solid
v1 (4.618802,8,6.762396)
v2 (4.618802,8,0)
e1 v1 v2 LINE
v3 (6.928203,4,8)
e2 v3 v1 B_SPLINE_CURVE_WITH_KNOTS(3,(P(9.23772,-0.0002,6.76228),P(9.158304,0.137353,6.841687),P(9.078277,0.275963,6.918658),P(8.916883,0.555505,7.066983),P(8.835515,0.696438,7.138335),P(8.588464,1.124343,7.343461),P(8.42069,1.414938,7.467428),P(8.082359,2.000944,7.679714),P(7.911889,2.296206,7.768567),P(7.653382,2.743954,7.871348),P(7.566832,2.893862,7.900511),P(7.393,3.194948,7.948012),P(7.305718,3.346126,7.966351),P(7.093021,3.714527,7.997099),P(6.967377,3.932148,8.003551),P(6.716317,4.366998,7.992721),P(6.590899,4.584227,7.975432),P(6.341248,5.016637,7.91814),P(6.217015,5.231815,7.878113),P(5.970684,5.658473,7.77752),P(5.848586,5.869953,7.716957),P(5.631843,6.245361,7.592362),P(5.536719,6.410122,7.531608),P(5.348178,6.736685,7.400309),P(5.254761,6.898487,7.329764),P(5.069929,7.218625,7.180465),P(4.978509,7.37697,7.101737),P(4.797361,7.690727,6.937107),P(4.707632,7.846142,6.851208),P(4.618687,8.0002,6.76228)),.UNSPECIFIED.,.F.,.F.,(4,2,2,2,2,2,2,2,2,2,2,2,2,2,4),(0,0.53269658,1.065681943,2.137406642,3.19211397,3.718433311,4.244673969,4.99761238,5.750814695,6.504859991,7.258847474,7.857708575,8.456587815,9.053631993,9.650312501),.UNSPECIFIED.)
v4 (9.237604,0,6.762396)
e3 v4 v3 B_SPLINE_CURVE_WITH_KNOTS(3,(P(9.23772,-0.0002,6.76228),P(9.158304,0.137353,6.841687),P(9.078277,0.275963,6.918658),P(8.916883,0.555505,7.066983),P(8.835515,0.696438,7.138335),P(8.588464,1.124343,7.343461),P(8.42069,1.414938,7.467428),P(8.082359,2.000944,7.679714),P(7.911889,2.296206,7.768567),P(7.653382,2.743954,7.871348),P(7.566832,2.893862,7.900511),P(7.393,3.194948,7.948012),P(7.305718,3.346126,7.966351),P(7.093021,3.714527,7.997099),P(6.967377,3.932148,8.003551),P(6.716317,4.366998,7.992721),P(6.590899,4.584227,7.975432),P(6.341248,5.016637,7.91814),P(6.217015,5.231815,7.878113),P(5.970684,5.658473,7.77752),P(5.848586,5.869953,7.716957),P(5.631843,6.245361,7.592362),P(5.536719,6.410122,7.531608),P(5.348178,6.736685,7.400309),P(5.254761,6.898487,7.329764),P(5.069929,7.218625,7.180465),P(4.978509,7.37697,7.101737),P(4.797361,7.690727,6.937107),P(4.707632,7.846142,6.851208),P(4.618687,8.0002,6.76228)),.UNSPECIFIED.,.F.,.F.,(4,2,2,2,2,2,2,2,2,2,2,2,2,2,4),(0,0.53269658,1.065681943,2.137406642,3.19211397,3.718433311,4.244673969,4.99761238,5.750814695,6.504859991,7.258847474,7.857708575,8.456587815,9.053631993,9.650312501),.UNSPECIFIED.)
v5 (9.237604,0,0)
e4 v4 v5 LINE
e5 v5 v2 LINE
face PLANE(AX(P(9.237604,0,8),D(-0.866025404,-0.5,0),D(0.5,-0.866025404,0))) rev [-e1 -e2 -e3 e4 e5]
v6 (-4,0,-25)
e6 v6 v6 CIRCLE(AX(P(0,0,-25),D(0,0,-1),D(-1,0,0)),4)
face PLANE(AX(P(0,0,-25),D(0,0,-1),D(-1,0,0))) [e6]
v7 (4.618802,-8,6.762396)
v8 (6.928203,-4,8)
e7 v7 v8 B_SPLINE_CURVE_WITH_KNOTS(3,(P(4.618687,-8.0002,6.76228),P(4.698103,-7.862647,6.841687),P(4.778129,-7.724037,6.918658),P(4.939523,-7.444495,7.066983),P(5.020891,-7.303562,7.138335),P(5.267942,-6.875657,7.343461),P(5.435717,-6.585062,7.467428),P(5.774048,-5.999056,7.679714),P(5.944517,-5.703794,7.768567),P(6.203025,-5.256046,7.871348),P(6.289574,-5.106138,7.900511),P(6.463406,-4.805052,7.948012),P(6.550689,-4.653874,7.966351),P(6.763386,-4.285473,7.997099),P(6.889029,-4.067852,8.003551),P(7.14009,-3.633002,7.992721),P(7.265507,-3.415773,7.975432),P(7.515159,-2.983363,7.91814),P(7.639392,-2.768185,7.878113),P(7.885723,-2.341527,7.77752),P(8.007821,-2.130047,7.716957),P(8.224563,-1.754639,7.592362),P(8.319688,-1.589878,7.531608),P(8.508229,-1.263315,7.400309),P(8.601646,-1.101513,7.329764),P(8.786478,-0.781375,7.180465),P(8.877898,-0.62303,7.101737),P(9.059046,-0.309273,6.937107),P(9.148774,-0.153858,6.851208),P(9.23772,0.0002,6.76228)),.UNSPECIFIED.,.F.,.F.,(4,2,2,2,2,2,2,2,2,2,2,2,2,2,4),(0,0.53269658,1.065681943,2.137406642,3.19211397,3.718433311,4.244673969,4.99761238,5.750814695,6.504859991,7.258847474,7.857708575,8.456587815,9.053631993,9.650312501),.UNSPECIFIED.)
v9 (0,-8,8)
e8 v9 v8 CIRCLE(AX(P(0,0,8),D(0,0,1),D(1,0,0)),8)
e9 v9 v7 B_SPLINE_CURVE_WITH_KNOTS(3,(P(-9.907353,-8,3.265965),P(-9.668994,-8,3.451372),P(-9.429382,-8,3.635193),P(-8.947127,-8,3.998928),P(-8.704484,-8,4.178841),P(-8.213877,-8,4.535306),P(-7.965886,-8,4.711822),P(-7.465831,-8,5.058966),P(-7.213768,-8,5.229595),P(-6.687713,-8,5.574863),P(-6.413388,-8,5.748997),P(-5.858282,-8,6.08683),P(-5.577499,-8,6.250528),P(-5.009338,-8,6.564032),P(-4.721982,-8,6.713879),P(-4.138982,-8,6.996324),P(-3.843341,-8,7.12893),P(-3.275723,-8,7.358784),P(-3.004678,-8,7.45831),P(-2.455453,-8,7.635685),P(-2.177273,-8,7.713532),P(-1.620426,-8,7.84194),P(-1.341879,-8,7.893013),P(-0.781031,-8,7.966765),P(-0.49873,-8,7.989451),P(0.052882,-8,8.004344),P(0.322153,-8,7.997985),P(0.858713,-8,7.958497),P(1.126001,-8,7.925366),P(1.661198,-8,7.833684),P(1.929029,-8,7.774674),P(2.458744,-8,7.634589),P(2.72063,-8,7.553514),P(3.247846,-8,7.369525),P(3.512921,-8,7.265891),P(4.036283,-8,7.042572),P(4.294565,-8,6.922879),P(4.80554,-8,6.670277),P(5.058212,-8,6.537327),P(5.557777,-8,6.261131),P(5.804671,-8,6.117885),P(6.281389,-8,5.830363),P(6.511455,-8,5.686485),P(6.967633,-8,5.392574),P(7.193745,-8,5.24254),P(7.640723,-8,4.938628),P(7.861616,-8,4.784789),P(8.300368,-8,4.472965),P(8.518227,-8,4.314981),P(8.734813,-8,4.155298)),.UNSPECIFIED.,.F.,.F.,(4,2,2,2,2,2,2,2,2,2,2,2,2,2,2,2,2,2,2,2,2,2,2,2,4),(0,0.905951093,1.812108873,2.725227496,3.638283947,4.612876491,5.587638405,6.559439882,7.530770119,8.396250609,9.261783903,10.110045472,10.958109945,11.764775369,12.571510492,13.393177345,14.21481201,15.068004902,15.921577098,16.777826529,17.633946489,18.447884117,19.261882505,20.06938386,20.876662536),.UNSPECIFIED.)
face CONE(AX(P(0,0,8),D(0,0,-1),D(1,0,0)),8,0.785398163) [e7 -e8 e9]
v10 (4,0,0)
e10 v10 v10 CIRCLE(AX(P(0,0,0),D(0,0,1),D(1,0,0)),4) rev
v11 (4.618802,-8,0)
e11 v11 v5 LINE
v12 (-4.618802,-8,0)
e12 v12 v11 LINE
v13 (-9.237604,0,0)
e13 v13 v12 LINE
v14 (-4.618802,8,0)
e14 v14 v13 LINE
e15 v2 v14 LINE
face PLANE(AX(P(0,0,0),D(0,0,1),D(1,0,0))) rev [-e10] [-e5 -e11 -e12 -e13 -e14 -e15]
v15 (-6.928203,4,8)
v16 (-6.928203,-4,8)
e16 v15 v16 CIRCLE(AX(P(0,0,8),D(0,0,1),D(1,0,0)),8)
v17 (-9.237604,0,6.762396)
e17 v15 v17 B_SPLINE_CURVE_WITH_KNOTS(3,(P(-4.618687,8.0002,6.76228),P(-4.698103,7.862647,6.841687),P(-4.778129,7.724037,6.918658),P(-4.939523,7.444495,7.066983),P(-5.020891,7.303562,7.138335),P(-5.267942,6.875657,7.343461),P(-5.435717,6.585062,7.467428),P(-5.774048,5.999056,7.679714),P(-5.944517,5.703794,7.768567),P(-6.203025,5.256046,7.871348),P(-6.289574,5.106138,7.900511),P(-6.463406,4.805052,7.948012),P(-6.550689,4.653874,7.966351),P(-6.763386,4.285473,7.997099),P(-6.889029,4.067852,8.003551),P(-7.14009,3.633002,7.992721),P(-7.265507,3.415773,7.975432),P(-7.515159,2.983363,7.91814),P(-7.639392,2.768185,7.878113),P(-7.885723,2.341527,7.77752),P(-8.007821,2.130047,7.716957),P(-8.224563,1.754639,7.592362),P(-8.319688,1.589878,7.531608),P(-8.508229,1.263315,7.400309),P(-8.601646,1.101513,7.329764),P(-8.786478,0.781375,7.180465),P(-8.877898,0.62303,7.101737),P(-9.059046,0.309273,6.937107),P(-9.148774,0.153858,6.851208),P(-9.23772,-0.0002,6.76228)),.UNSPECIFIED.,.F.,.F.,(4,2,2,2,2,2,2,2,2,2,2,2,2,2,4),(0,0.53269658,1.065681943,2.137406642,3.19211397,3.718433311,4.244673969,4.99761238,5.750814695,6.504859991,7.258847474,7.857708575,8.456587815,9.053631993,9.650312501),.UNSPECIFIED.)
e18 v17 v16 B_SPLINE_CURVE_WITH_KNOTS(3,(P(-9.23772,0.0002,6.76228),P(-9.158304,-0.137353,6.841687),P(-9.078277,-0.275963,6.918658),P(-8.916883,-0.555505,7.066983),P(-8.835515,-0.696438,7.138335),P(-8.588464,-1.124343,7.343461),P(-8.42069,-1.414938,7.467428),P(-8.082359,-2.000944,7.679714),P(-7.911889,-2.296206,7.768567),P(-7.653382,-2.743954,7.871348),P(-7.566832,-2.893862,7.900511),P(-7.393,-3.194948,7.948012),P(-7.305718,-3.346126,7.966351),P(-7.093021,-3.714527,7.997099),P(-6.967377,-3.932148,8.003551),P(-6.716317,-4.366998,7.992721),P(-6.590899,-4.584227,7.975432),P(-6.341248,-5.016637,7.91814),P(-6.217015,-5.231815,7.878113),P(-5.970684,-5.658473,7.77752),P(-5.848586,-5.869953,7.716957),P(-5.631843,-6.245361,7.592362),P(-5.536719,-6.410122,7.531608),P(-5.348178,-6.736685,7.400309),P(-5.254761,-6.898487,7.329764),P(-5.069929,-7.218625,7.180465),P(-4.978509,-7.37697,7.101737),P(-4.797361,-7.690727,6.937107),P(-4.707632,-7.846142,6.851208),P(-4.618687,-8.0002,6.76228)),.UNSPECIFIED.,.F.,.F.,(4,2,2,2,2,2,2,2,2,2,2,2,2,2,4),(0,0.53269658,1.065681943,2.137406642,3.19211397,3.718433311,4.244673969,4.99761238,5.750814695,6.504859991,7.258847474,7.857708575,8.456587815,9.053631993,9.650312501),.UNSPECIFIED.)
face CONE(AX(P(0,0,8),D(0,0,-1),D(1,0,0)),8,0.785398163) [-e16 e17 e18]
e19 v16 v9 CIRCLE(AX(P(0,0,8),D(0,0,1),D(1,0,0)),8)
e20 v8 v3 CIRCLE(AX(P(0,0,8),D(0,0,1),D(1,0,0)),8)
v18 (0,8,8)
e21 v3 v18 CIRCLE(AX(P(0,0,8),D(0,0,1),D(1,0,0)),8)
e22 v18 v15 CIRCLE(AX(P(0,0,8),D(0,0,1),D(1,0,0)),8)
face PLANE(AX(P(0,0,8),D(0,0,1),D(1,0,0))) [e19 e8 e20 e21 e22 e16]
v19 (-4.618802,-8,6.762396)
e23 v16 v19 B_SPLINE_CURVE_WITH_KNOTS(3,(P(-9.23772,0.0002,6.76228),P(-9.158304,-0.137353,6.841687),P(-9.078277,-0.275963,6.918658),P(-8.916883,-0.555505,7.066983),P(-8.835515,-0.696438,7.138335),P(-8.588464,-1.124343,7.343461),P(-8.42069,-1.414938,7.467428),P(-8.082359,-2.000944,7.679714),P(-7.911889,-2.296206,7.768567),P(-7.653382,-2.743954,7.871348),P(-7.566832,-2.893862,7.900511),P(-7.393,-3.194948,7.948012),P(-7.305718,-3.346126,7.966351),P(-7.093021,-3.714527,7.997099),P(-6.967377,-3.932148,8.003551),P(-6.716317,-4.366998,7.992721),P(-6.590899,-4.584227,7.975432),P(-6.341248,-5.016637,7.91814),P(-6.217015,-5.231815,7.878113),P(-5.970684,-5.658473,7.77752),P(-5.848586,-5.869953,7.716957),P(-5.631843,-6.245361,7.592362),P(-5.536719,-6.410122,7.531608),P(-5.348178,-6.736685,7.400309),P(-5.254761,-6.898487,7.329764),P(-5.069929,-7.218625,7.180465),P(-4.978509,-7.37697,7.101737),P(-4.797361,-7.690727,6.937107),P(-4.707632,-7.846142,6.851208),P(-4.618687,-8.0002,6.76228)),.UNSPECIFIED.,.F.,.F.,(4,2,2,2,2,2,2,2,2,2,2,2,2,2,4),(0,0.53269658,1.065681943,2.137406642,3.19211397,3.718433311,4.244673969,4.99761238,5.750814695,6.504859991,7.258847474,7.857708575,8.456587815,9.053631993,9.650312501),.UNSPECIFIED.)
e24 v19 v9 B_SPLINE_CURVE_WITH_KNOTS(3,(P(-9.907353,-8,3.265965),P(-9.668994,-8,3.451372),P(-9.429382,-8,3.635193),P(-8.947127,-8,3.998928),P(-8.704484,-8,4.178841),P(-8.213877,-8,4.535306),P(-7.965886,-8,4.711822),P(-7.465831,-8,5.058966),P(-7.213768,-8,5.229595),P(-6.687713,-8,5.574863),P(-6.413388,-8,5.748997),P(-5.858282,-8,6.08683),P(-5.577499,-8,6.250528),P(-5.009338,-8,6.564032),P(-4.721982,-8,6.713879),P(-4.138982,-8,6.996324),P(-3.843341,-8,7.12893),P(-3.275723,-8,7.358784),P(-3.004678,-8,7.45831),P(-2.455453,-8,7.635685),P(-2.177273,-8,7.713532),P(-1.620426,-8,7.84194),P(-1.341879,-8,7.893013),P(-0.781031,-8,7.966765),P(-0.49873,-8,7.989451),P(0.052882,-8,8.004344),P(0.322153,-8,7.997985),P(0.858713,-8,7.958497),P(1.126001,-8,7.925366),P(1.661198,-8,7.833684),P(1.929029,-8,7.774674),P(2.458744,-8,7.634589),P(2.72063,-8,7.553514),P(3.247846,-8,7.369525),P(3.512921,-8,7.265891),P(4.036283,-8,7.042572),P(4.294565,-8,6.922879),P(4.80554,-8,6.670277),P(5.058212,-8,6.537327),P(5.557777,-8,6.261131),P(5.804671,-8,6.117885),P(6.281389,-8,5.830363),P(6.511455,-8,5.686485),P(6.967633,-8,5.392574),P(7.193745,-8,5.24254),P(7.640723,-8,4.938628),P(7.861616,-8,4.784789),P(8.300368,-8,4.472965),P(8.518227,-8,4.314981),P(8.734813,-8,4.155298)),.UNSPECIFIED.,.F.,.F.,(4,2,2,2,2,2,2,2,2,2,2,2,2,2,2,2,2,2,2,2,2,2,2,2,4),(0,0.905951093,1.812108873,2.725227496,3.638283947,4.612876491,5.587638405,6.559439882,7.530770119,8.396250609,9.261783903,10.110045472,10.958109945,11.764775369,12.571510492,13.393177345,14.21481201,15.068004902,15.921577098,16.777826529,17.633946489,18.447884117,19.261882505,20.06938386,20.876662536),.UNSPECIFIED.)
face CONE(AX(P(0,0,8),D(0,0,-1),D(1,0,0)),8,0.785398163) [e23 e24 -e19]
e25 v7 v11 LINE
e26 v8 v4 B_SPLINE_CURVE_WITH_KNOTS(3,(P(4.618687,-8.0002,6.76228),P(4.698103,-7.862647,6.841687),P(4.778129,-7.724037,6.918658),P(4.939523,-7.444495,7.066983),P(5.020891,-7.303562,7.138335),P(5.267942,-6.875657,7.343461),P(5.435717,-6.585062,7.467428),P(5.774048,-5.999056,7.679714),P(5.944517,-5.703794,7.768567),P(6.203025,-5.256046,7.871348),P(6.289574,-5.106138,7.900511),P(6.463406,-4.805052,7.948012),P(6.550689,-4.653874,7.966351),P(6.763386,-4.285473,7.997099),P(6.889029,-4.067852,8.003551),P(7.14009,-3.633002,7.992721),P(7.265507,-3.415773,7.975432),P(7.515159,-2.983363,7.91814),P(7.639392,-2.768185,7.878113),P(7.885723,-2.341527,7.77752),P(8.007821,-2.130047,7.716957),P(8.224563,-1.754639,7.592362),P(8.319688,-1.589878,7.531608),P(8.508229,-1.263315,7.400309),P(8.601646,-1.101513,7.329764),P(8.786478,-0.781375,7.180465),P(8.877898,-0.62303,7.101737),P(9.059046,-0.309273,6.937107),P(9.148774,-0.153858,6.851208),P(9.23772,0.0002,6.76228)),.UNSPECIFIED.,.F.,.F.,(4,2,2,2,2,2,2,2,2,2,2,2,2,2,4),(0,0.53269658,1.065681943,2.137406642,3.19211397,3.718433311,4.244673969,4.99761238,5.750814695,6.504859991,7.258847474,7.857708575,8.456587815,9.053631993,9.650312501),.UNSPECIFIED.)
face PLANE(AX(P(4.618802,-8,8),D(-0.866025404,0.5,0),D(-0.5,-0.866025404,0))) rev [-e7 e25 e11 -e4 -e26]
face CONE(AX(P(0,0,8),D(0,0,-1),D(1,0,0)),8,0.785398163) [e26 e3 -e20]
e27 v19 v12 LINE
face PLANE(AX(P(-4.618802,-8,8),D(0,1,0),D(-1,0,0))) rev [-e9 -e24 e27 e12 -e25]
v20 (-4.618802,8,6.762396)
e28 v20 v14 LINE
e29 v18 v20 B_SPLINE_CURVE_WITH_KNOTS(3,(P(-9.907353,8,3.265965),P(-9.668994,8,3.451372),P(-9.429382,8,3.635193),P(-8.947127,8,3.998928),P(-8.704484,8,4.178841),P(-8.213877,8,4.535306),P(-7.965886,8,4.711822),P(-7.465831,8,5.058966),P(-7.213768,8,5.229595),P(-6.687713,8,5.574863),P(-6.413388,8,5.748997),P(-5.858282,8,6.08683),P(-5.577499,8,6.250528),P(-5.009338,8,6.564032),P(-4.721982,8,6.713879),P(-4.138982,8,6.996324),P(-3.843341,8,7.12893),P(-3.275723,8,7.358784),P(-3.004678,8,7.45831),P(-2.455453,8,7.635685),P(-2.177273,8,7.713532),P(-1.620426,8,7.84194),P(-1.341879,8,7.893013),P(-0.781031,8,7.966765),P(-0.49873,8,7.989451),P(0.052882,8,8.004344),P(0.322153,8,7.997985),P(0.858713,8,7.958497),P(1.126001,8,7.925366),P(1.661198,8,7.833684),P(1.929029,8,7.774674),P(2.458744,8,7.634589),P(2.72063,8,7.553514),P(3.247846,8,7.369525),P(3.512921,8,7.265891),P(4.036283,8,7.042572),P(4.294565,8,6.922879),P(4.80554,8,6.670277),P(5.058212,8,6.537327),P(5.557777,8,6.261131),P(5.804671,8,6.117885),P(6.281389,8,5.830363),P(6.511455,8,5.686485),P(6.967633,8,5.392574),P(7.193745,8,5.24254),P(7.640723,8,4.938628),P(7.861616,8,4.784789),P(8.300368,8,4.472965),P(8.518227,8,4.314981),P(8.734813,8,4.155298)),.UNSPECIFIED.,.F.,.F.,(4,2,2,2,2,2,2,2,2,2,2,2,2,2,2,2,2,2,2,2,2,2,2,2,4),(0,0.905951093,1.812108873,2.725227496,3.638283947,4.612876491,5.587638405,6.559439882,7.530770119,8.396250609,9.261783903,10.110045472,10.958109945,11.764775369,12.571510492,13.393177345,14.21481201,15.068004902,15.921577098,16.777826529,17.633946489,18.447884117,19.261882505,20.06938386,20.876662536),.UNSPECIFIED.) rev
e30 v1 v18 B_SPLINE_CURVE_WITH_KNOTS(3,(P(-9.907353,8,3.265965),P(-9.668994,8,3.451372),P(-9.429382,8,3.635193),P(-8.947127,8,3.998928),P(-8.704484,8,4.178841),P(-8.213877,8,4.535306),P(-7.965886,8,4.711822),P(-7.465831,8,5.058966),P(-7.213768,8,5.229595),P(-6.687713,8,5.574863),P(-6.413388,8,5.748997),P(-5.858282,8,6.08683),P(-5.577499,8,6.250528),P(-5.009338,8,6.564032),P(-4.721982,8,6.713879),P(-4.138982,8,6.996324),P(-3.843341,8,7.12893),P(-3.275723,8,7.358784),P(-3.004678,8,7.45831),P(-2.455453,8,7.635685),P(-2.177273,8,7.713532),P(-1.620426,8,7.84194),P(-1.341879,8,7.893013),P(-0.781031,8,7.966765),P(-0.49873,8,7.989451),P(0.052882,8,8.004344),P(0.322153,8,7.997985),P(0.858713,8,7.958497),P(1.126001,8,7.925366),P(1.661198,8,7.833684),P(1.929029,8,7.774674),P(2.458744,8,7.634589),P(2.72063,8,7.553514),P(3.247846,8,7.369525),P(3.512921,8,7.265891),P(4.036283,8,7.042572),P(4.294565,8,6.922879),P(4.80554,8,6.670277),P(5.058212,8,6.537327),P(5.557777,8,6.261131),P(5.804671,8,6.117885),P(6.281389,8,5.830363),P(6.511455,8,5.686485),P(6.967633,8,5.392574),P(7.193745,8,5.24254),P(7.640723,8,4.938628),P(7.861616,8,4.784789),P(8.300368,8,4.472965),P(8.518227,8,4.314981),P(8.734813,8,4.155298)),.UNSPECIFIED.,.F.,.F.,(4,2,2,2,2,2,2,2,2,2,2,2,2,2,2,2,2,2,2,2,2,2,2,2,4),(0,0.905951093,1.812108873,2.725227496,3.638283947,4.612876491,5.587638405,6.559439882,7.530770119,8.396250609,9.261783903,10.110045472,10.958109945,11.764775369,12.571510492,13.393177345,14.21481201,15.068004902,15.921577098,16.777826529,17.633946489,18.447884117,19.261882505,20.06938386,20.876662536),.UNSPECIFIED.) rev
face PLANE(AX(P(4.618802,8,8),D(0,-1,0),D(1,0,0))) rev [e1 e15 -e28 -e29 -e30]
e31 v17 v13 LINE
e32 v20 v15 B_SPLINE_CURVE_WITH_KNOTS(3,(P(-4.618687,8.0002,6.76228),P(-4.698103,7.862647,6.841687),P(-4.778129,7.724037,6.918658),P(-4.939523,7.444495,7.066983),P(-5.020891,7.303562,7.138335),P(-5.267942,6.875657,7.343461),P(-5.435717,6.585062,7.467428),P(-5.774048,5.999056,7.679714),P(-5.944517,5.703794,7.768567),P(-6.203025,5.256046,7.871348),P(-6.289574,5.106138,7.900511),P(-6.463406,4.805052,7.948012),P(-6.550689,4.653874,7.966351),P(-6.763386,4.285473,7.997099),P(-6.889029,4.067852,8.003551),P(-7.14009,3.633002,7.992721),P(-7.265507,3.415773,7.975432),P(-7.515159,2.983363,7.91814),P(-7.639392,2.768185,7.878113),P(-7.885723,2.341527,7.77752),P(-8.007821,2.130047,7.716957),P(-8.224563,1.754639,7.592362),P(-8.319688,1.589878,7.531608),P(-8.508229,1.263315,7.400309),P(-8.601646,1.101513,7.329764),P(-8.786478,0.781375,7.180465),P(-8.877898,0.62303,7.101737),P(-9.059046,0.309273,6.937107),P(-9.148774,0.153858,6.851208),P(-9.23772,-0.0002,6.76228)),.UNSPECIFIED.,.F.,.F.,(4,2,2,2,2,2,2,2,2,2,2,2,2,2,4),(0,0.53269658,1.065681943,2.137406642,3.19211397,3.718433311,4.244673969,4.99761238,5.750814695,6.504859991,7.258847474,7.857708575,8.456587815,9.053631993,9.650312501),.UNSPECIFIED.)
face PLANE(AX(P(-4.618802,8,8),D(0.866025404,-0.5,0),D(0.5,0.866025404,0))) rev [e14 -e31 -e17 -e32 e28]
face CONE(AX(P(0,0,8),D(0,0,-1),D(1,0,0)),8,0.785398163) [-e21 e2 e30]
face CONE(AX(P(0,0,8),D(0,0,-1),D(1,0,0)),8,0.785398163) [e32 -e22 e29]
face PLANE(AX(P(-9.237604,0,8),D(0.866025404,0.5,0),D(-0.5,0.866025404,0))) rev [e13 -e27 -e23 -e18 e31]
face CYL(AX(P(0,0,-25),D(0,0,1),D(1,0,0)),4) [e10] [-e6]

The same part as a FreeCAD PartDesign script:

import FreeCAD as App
import Part
import Sketcher
Q = App.Units.Quantity

doc = App.newDocument("Part")
body = doc.addObject("PartDesign::Body", "Body")

# Sketch on XY plane
sketch1 = doc.addObject("Sketcher::SketchObject", "Sketch")
body.addObject(sketch1)
sketch1.AttachmentSupport = (doc.XY_Plane, [""])
sketch1.MapMode = "FlatFace"
sketch1.addGeometry(Part.LineSegment(App.Vector(9, 0, 0), App.Vector(5, 8, 0)), False)
sketch1.addGeometry(Part.LineSegment(App.Vector(5, 8, 0), App.Vector(-5, 8, 0)), False)
sketch1.addGeometry(Part.LineSegment(App.Vector(-5, 8, 0), App.Vector(-9, 0, 0)), False)
sketch1.addGeometry(Part.LineSegment(App.Vector(-9, 0, 0), App.Vector(-5, -8, 0)), False)
sketch1.addGeometry(Part.LineSegment(App.Vector(-5, -8, 0), App.Vector(5, -8, 0)), False)
sketch1.addGeometry(Part.LineSegment(App.Vector(5, -8, 0), App.Vector(9, 0, 0)), False)
sketch1.addConstraint(Sketcher.Constraint("Coincident", 0, 2, 1, 1))
sketch1.addConstraint(Sketcher.Constraint("Coincident", 1, 2, 2, 1))
sketch1.addConstraint(Sketcher.Constraint("Coincident", 2, 2, 3, 1))
sketch1.addConstraint(Sketcher.Constraint("Coincident", 3, 2, 4, 1))
sketch1.addConstraint(Sketcher.Constraint("Coincident", 4, 2, 5, 1))
sketch1.addConstraint(Sketcher.Constraint("Coincident", 5, 2, 0, 1))
sketch1.addConstraint(Sketcher.Constraint("Horizontal", 1))
sketch1.addConstraint(Sketcher.Constraint("Horizontal", 4))
sketch1.addConstraint(Sketcher.Constraint("Symmetric", 0, 2, 3, 2, -1, 1))
sketch1.addConstraint(Sketcher.Constraint("Symmetric", 2, 2, 5, 2, -1, 1))
sketch1.addConstraint(Sketcher.Constraint("PointOnObject", 2, 2, -1))
sketch1.addConstraint(Sketcher.Constraint("Parallel", 2, 5))
sketch1.addConstraint(Sketcher.Constraint("Vertical", 1, 2, 3, 2))
sketch1.addConstraint(Sketcher.Constraint("Angle", 0, Q("120 deg")))
sketch1.addConstraint(Sketcher.Constraint("DistanceY", -1, 1, 0, 2, 8.0))
sketch1.addConstraint(Sketcher.Constraint("DistanceX", 1, 2, 1, 1, 9.237604))
pad1 = doc.addObject("PartDesign::Pad", "Pad")
body.addObject(pad1)
pad1.Profile = sketch1
pad1.Length = 8

# Sketch on XY plane
sketch2 = doc.addObject("Sketcher::SketchObject", "Sketch001")
body.addObject(sketch2)
sketch2.AttachmentSupport = (doc.XY_Plane, [""])
sketch2.MapMode = "FlatFace"
sketch2.AttachmentOffset = App.Placement(App.Vector(0, 0, 8), App.Rotation())
sketch2.addGeometry(Part.LineSegment(App.Vector(-21, 20, 0), App.Vector(-21, -20, 0)), False)
sketch2.addGeometry(Part.LineSegment(App.Vector(-21, -20, 0), App.Vector(21, -20, 0)), False)
sketch2.addGeometry(Part.LineSegment(App.Vector(21, -20, 0), App.Vector(21, 20, 0)), False)
sketch2.addGeometry(Part.LineSegment(App.Vector(21, 20, 0), App.Vector(-21, 20, 0)), False)
sketch2.addGeometry(Part.Circle(App.Vector(0, 0, 0), App.Vector(0, 0, 1), 8), False)
sketch2.addConstraint(Sketcher.Constraint("Coincident", 0, 2, 1, 1))
sketch2.addConstraint(Sketcher.Constraint("Coincident", 1, 2, 2, 1))
sketch2.addConstraint(Sketcher.Constraint("Coincident", 2, 2, 3, 1))
sketch2.addConstraint(Sketcher.Constraint("Coincident", 3, 2, 0, 1))
sketch2.addConstraint(Sketcher.Constraint("Vertical", 0))
sketch2.addConstraint(Sketcher.Constraint("Horizontal", 1))
sketch2.addConstraint(Sketcher.Constraint("Vertical", 2))
sketch2.addConstraint(Sketcher.Constraint("Horizontal", 3))
sketch2.addConstraint(Sketcher.Constraint("Coincident", 4, 3, -1, 1))
sketch2.addConstraint(Sketcher.Constraint("Symmetric", 0, 2, 2, 2, -1, 1))
sketch2.addConstraint(Sketcher.Constraint("Diameter", 4, 16.0))
sketch2.addConstraint(Sketcher.Constraint("DistanceX", 1, 1, 1, 2, 41.62))
sketch2.addConstraint(Sketcher.Constraint("DistanceY", 0, 2, 0, 1, 39.144))
pocket1 = doc.addObject("PartDesign::Pocket", "Pocket")
body.addObject(pocket1)
pocket1.Profile = sketch2
pocket1.Length = 8
pocket1.TaperAngle = 45

# Sketch on XY plane
sketch3 = doc.addObject("Sketcher::SketchObject", "Sketch002")
body.addObject(sketch3)
sketch3.AttachmentSupport = (doc.XY_Plane, [""])
sketch3.MapMode = "FlatFace"
sketch3.addGeometry(Part.Circle(App.Vector(0, 0, 0), App.Vector(0, 0, 1), 4), False)
sketch3.addConstraint(Sketcher.Constraint("Coincident", 0, 3, -1, 1))
sketch3.addConstraint(Sketcher.Constraint("Diameter", 0, 8.0))
pad2 = doc.addObject("PartDesign::Pad", "Pad001")
body.addObject(pad2)
pad2.Profile = sketch3
pad2.Length = 25
pad2.Reversed = True

doc.recompute()
